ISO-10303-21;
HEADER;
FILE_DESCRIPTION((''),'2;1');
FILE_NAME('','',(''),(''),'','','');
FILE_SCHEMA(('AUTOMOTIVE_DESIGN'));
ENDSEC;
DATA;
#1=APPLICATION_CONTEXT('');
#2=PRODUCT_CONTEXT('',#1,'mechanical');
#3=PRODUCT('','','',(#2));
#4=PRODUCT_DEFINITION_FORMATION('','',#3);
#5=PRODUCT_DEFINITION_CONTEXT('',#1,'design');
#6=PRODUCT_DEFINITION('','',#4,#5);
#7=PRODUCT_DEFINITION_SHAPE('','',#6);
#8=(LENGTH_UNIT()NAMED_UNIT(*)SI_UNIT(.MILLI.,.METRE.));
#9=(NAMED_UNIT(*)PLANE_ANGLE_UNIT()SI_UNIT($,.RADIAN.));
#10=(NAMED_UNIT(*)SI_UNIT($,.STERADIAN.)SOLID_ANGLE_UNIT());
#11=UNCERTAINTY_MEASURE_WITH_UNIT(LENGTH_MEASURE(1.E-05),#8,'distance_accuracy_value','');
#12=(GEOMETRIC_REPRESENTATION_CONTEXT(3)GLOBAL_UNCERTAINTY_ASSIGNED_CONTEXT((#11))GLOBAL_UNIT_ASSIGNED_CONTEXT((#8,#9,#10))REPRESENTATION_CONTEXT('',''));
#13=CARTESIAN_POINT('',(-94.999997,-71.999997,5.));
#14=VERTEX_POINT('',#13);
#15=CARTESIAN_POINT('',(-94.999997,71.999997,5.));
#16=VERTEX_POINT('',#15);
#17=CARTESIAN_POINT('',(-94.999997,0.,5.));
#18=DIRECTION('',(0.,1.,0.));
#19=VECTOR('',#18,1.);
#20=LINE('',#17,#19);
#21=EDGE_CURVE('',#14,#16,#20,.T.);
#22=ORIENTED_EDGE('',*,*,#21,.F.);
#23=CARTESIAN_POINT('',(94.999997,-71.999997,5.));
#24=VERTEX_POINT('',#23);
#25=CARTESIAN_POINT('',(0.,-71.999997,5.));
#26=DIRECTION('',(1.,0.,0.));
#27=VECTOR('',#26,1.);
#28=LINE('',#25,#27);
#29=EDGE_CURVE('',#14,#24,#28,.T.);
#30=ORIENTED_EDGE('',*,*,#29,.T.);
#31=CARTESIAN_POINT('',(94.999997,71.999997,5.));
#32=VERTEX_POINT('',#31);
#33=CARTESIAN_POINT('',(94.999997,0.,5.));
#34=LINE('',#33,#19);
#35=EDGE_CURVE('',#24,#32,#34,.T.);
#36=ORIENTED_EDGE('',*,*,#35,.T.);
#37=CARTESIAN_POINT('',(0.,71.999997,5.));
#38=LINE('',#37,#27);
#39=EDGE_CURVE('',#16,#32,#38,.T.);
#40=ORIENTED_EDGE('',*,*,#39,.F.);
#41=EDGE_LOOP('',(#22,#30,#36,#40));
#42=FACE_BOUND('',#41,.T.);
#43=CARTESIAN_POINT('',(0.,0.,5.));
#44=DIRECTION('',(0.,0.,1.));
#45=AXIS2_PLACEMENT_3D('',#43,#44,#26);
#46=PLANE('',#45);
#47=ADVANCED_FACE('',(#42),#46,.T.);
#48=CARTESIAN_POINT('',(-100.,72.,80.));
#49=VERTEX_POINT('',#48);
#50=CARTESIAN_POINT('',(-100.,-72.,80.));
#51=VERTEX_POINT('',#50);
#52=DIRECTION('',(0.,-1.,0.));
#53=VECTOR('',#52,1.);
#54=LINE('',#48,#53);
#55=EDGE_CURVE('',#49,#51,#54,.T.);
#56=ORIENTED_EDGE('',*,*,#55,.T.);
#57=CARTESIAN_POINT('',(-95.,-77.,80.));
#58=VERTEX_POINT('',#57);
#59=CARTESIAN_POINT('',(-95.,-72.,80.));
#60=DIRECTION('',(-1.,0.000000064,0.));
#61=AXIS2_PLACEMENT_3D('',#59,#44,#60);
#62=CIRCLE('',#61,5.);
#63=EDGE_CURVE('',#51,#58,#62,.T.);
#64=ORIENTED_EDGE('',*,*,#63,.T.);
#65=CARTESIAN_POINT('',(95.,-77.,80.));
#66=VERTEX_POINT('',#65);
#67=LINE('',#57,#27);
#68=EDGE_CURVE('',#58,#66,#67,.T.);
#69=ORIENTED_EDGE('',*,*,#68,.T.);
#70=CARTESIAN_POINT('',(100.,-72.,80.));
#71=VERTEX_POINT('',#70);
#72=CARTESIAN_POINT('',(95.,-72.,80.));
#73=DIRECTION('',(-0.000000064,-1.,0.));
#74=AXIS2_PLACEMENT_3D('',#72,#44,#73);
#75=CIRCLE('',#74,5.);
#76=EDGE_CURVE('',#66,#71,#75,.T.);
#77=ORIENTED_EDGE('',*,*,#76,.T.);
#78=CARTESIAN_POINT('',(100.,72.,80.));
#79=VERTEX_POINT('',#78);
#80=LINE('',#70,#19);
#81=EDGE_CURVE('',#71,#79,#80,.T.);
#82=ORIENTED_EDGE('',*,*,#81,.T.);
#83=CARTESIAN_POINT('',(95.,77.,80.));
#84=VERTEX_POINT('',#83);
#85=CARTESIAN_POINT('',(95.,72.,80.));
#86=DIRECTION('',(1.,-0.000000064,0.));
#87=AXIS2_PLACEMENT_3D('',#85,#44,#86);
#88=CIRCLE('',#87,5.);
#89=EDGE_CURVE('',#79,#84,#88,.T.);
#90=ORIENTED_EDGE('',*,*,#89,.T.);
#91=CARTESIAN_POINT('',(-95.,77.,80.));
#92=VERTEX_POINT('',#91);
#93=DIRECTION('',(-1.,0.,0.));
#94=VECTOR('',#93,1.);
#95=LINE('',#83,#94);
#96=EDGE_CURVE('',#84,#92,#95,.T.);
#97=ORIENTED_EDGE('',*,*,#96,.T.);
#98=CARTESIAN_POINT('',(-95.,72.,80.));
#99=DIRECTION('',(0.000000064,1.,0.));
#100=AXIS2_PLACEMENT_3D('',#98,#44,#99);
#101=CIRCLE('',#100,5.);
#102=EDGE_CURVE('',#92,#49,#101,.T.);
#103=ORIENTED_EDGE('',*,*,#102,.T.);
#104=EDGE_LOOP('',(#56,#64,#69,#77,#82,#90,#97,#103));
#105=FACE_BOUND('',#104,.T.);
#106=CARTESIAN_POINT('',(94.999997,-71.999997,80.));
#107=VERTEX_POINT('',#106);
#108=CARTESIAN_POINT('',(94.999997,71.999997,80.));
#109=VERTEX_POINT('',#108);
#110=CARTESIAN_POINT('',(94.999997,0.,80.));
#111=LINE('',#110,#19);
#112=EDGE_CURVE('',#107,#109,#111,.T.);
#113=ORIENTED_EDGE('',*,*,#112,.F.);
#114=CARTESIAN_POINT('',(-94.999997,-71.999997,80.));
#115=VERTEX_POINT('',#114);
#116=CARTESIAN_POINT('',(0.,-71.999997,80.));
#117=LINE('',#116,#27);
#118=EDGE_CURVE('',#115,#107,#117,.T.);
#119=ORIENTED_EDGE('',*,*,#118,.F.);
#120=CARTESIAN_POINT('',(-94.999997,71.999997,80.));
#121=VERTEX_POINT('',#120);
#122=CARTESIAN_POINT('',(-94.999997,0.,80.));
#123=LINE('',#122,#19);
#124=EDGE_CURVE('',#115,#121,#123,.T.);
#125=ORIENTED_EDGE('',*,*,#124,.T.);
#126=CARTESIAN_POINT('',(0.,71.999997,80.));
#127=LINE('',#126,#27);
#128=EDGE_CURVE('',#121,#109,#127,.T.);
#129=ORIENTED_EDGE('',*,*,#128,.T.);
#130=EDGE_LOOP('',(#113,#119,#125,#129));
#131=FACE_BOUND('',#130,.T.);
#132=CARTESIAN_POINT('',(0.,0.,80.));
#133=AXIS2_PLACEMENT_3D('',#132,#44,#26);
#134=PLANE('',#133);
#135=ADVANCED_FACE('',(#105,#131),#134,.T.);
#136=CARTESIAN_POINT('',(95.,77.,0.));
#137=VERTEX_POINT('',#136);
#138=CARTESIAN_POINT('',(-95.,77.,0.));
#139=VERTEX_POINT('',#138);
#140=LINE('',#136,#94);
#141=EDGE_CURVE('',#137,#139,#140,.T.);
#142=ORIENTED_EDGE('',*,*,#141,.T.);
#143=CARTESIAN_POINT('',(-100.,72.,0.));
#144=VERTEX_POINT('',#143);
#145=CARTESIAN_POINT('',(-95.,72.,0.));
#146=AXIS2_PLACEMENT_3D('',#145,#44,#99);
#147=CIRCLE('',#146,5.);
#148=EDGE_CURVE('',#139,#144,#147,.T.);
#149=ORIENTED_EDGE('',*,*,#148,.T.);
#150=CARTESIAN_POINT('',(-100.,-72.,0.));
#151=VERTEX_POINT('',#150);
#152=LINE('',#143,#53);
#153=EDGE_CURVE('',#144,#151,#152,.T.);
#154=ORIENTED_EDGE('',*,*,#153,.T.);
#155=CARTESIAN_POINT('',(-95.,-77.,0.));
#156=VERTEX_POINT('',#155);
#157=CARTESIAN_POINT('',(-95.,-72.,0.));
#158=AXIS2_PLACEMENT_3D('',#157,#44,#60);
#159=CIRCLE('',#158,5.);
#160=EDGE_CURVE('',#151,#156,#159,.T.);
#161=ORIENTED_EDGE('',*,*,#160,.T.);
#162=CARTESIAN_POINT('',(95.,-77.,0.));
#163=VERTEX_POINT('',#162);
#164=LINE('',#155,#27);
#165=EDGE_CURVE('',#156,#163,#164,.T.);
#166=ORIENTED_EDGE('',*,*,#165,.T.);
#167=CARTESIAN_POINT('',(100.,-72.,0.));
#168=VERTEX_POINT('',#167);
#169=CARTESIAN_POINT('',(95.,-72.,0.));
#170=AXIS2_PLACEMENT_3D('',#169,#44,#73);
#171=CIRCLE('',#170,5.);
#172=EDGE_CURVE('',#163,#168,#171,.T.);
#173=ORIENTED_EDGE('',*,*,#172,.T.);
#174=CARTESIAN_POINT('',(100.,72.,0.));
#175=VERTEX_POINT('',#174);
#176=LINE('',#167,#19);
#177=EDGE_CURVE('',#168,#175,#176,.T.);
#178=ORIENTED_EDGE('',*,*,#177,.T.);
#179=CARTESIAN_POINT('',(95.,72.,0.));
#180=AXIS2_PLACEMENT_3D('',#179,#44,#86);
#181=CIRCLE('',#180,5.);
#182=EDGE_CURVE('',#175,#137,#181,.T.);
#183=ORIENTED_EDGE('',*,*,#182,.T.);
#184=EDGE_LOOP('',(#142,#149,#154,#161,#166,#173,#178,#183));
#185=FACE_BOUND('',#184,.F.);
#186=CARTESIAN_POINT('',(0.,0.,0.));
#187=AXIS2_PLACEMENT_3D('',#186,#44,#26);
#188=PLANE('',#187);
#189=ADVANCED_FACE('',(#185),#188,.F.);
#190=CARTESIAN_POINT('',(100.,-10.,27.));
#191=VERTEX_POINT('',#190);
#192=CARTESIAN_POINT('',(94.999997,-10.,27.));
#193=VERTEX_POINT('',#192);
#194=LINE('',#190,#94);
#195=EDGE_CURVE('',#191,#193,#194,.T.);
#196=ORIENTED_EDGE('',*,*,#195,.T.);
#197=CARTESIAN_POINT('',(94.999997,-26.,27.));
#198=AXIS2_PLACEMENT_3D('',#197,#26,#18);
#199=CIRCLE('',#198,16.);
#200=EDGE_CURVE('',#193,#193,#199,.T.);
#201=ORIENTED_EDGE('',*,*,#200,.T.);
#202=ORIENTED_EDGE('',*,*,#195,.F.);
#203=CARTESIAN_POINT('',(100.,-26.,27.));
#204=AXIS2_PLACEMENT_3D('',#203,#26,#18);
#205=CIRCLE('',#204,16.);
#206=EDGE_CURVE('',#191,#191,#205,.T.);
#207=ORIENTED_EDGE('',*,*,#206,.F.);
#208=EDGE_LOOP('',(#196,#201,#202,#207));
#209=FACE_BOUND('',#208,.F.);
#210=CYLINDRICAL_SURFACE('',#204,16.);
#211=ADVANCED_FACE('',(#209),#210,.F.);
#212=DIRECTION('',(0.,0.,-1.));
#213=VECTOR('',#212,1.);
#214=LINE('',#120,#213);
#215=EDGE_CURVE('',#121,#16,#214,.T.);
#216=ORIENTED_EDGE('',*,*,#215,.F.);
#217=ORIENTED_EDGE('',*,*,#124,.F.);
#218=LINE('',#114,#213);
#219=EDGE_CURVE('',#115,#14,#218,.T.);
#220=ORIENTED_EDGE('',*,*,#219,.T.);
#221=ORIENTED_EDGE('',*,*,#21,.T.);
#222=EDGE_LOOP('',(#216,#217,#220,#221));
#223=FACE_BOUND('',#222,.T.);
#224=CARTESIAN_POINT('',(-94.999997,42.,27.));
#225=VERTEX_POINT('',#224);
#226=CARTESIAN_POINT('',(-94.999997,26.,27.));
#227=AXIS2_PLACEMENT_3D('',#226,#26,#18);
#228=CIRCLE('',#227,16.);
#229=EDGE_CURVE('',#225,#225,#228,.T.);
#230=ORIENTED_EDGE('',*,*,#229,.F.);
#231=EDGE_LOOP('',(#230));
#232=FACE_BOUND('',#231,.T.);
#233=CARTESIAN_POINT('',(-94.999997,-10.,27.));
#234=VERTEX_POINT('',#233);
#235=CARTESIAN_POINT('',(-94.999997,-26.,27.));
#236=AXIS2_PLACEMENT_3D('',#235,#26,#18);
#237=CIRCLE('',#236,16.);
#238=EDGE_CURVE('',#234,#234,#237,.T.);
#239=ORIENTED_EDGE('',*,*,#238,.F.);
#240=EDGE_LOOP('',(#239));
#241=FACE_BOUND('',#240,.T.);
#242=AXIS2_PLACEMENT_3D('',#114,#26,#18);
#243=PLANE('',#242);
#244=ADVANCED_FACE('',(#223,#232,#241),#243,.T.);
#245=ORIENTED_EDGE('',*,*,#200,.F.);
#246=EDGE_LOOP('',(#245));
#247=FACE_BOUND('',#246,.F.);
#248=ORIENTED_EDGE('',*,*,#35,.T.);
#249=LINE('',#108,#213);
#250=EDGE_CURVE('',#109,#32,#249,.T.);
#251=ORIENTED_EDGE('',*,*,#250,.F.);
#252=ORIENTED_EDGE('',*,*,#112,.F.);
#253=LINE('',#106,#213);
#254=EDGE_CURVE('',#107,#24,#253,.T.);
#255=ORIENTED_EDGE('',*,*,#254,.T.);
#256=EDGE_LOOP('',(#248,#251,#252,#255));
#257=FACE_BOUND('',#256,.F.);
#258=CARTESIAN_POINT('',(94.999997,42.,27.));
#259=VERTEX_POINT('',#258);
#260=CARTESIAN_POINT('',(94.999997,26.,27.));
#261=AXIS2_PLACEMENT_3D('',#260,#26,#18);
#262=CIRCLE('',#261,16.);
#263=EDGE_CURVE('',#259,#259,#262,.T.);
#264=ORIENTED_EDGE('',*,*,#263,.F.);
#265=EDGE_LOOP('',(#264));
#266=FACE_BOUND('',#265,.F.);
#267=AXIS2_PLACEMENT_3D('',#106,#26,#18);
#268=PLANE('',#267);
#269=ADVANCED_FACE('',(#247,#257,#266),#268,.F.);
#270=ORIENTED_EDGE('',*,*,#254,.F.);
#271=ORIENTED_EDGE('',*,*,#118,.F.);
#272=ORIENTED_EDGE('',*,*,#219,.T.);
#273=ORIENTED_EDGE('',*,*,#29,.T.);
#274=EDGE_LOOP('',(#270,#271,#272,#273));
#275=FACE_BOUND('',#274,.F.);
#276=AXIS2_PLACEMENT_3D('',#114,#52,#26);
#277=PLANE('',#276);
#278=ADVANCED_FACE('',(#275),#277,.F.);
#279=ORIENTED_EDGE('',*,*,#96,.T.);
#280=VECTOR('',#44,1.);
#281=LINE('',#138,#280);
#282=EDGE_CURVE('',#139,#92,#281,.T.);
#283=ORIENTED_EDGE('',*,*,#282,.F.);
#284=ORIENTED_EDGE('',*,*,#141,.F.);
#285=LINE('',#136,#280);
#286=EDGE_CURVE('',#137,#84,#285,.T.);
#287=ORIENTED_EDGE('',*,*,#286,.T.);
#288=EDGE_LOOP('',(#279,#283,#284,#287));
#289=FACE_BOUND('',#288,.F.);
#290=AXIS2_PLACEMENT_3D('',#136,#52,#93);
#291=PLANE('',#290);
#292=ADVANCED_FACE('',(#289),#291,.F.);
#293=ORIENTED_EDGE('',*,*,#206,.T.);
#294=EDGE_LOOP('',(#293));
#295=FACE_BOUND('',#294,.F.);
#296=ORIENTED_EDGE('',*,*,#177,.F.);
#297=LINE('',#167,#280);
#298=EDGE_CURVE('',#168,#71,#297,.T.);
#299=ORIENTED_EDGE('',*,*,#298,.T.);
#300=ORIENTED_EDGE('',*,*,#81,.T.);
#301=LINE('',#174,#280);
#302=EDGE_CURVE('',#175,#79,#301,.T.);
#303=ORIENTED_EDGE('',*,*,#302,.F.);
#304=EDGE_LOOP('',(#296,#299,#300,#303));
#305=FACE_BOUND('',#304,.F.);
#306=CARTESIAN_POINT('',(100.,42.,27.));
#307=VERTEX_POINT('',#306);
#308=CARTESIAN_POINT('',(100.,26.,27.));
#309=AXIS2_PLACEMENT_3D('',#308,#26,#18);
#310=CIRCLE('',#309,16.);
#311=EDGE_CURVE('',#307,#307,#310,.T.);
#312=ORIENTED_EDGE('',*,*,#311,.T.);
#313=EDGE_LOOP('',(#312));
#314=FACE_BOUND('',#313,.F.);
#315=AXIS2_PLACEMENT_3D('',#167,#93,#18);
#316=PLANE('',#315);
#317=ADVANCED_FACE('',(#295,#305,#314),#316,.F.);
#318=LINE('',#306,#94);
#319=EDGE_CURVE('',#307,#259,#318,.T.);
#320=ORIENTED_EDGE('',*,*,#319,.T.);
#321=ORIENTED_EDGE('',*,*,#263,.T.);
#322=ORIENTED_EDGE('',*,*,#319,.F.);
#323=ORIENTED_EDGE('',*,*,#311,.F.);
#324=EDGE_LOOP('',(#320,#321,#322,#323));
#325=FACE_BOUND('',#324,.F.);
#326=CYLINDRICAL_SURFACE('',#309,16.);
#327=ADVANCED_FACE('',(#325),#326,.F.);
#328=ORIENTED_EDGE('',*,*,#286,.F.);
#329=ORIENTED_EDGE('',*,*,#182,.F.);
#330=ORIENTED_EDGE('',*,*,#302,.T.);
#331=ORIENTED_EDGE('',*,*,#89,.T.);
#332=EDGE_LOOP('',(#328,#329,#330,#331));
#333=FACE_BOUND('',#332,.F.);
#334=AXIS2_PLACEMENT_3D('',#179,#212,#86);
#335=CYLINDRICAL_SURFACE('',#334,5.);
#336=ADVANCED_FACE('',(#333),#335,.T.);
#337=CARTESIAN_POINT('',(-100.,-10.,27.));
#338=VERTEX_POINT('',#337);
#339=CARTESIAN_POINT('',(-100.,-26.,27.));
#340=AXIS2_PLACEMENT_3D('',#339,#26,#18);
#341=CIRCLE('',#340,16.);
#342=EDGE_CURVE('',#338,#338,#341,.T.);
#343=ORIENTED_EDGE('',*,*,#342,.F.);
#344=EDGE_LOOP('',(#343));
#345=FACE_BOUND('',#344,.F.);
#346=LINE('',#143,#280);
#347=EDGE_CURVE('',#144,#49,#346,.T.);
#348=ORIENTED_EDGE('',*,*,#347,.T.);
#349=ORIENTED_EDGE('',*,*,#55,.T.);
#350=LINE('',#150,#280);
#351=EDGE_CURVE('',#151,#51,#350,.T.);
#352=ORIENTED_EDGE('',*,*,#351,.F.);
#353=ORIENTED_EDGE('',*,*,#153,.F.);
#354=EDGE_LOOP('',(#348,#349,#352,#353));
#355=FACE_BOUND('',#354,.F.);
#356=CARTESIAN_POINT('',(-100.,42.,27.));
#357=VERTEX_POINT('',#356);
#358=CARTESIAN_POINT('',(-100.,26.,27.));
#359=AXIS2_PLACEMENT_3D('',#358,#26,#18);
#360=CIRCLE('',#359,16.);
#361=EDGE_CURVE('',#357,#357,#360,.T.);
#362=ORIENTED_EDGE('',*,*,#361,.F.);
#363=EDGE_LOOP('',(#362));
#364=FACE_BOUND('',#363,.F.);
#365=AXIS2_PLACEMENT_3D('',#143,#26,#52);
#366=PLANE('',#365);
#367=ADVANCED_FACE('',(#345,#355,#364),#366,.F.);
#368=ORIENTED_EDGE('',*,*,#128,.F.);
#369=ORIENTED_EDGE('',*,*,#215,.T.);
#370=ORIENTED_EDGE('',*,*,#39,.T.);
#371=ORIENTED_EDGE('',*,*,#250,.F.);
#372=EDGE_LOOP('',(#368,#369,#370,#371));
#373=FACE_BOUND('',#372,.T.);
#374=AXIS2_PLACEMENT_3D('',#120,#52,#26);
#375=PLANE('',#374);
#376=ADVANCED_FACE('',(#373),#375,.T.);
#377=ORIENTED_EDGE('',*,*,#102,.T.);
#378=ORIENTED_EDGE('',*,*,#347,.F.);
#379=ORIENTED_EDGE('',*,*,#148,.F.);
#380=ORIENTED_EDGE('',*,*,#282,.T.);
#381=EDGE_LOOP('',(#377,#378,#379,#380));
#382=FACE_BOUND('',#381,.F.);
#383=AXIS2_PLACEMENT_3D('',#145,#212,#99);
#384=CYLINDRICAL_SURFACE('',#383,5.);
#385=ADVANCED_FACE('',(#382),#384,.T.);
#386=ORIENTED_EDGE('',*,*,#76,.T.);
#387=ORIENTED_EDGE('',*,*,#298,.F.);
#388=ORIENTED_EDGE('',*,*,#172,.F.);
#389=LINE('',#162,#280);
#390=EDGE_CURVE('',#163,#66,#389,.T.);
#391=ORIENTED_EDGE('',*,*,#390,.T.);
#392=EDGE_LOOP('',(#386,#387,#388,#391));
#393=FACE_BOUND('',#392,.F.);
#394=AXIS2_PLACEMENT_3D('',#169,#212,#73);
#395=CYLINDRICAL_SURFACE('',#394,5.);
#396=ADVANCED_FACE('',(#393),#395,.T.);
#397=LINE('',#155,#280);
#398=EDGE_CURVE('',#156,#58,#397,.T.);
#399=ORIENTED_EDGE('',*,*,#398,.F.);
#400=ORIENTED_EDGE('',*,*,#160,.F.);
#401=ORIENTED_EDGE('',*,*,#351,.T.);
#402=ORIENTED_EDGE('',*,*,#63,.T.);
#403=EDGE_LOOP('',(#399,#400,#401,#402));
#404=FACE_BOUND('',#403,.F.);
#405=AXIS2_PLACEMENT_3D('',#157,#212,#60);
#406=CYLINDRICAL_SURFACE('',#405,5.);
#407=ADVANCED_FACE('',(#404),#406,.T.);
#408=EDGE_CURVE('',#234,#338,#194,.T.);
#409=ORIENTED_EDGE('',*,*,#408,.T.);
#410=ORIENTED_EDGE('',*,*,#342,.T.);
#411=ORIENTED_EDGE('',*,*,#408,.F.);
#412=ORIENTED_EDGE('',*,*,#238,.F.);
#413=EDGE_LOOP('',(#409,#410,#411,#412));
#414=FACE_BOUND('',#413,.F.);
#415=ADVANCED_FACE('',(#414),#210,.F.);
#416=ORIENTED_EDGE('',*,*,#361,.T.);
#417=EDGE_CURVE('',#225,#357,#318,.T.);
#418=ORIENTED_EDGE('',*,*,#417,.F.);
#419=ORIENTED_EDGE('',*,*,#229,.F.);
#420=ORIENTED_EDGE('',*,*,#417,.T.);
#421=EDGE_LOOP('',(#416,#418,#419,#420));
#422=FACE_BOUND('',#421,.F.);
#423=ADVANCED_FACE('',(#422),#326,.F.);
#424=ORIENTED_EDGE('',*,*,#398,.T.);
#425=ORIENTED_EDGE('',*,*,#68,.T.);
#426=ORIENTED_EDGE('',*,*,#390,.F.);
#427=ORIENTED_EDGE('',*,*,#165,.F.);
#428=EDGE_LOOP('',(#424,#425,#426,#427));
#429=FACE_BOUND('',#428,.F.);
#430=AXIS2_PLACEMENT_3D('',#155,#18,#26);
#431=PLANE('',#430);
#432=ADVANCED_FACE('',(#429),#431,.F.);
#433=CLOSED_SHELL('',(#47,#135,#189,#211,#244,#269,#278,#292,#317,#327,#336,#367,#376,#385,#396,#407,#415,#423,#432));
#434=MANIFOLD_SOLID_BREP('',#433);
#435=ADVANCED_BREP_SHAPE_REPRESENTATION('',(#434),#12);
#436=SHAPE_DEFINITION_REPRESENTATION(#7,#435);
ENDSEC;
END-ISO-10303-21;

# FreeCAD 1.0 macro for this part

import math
import FreeCAD as App
import Part
import Sketcher

V = App.Vector
Q = App.Units.Quantity

doc = App.newDocument("Part")
body = doc.addObject("PartDesign::Body", "Body")

sketch1 = body.newObject("Sketcher::SketchObject", "Sketch")
sketch1.AttachmentSupport = (doc.getObject("XY_Plane"), [""])
sketch1.MapMode = "FlatFace"
sketch1.addGeometry(Part.ArcOfCircle(Part.Circle(V(95, 72, 0), V(0, 0, 1), 5), math.radians(0), math.radians(90)), False)
sketch1.addGeometry(Part.LineSegment(V(95, 77, 0), V(-95, 77, 0)), False)
sketch1.addGeometry(Part.ArcOfCircle(Part.Circle(V(-95, 72, 0), V(0, 0, 1), 5), math.radians(90), math.radians(180)), False)
sketch1.addGeometry(Part.LineSegment(V(-100, 72, 0), V(-100, -72, 0)), False)
sketch1.addGeometry(Part.ArcOfCircle(Part.Circle(V(-95, -72, 0), V(0, 0, 1), 5), math.radians(180), math.radians(270)), False)
sketch1.addGeometry(Part.LineSegment(V(-95, -77, 0), V(95, -77, 0)), False)
sketch1.addGeometry(Part.ArcOfCircle(Part.Circle(V(95, -72, 0), V(0, 0, 1), 5), math.radians(-90), math.radians(0)), False)
sketch1.addGeometry(Part.LineSegment(V(100, -72, 0), V(100, 72, 0)), False)
sketch1.addConstraint(Sketcher.Constraint("Tangent", 0, 2, 1, 1))
sketch1.addConstraint(Sketcher.Constraint("Tangent", 1, 2, 2, 1))
sketch1.addConstraint(Sketcher.Constraint("Tangent", 2, 2, 3, 1))
sketch1.addConstraint(Sketcher.Constraint("Tangent", 3, 2, 4, 1))
sketch1.addConstraint(Sketcher.Constraint("Tangent", 4, 2, 5, 1))
sketch1.addConstraint(Sketcher.Constraint("Tangent", 5, 2, 6, 1))
sketch1.addConstraint(Sketcher.Constraint("Tangent", 6, 2, 7, 1))
sketch1.addConstraint(Sketcher.Constraint("Tangent", 7, 2, 0, 1))
sketch1.addConstraint(Sketcher.Constraint("Horizontal", 1))
sketch1.addConstraint(Sketcher.Constraint("Vertical", 3))
sketch1.addConstraint(Sketcher.Constraint("Horizontal", 5))
sketch1.addConstraint(Sketcher.Constraint("Vertical", 7))
sketch1.addConstraint(Sketcher.Constraint("Equal", 0, 2))
sketch1.addConstraint(Sketcher.Constraint("Equal", 2, 4))
sketch1.addConstraint(Sketcher.Constraint("Equal", 4, 6))
sketch1.addConstraint(Sketcher.Constraint("Symmetric", 0, 3, 4, 3, -1, 1))
sketch1.addConstraint(Sketcher.Constraint("Radius", 0, Q("5 mm")))
sketch1.addConstraint(Sketcher.Constraint("DistanceX", 1, 2, 1, 1, Q("190 mm")))
sketch1.addConstraint(Sketcher.Constraint("DistanceY", 3, 2, 3, 1, Q("144 mm")))
pad1 = body.newObject("PartDesign::Pad", "Pad")
pad1.Profile = sketch1
pad1.Length = 80

sketch2 = body.newObject("Sketcher::SketchObject", "Sketch001")
sketch2.AttachmentSupport = (doc.getObject("XY_Plane"), [""])
sketch2.MapMode = "FlatFace"
sketch2.AttachmentOffset = App.Placement(V(0, 0, 80), App.Rotation())
sketch2.addGeometry(Part.LineSegment(V(-95, 72, 0), V(-95, -72, 0)), False)
sketch2.addGeometry(Part.LineSegment(V(-95, -72, 0), V(95, -72, 0)), False)
sketch2.addGeometry(Part.LineSegment(V(95, -72, 0), V(95, 72, 0)), False)
sketch2.addGeometry(Part.LineSegment(V(95, 72, 0), V(-95, 72, 0)), False)
sketch2.addConstraint(Sketcher.Constraint("Coincident", 0, 2, 1, 1))
sketch2.addConstraint(Sketcher.Constraint("Coincident", 1, 2, 2, 1))
sketch2.addConstraint(Sketcher.Constraint("Coincident", 2, 2, 3, 1))
sketch2.addConstraint(Sketcher.Constraint("Coincident", 3, 2, 0, 1))
sketch2.addConstraint(Sketcher.Constraint("Vertical", 0))
sketch2.addConstraint(Sketcher.Constraint("Horizontal", 1))
sketch2.addConstraint(Sketcher.Constraint("Vertical", 2))
sketch2.addConstraint(Sketcher.Constraint("Horizontal", 3))
sketch2.addConstraint(Sketcher.Constraint("Symmetric", 0, 2, 2, 2, -1, 1))
sketch2.addConstraint(Sketcher.Constraint("DistanceX", 1, 1, 1, 2, Q("189.999994 mm")))
sketch2.addConstraint(Sketcher.Constraint("DistanceY", 0, 2, 0, 1, Q("143.999994 mm")))
pocket1 = body.newObject("PartDesign::Pocket", "Pocket")
pocket1.Profile = sketch2
pocket1.Length = 75

sketch3 = body.newObject("Sketcher::SketchObject", "Sketch002")
sketch3.AttachmentSupport = (doc.getObject("YZ_Plane"), [""])
sketch3.MapMode = "FlatFace"
sketch3.AttachmentOffset = App.Placement(V(0, 0, 100), App.Rotation())
sketch3.addGeometry(Part.Circle(V(26, 27, 0), V(0, 0, 1), 16), False)
sketch3.addGeometry(Part.Circle(V(-26, 27, 0), V(0, 0, 1), 16), False)
sketch3.addConstraint(Sketcher.Constraint("Equal", 0, 1))
sketch3.addConstraint(Sketcher.Constraint("Symmetric", 0, 3, 1, 3, -2))
sketch3.addConstraint(Sketcher.Constraint("Diameter", 0, Q("32 mm")))
sketch3.addConstraint(Sketcher.Constraint("DistanceX", -1, 1, 0, 3, Q("26 mm")))
sketch3.addConstraint(Sketcher.Constraint("DistanceY", -1, 1, 0, 3, Q("27 mm")))
pocket2 = body.newObject("PartDesign::Pocket", "Pocket001")
pocket2.Profile = sketch3
pocket2.Type = "ThroughAll"

doc.recompute()
